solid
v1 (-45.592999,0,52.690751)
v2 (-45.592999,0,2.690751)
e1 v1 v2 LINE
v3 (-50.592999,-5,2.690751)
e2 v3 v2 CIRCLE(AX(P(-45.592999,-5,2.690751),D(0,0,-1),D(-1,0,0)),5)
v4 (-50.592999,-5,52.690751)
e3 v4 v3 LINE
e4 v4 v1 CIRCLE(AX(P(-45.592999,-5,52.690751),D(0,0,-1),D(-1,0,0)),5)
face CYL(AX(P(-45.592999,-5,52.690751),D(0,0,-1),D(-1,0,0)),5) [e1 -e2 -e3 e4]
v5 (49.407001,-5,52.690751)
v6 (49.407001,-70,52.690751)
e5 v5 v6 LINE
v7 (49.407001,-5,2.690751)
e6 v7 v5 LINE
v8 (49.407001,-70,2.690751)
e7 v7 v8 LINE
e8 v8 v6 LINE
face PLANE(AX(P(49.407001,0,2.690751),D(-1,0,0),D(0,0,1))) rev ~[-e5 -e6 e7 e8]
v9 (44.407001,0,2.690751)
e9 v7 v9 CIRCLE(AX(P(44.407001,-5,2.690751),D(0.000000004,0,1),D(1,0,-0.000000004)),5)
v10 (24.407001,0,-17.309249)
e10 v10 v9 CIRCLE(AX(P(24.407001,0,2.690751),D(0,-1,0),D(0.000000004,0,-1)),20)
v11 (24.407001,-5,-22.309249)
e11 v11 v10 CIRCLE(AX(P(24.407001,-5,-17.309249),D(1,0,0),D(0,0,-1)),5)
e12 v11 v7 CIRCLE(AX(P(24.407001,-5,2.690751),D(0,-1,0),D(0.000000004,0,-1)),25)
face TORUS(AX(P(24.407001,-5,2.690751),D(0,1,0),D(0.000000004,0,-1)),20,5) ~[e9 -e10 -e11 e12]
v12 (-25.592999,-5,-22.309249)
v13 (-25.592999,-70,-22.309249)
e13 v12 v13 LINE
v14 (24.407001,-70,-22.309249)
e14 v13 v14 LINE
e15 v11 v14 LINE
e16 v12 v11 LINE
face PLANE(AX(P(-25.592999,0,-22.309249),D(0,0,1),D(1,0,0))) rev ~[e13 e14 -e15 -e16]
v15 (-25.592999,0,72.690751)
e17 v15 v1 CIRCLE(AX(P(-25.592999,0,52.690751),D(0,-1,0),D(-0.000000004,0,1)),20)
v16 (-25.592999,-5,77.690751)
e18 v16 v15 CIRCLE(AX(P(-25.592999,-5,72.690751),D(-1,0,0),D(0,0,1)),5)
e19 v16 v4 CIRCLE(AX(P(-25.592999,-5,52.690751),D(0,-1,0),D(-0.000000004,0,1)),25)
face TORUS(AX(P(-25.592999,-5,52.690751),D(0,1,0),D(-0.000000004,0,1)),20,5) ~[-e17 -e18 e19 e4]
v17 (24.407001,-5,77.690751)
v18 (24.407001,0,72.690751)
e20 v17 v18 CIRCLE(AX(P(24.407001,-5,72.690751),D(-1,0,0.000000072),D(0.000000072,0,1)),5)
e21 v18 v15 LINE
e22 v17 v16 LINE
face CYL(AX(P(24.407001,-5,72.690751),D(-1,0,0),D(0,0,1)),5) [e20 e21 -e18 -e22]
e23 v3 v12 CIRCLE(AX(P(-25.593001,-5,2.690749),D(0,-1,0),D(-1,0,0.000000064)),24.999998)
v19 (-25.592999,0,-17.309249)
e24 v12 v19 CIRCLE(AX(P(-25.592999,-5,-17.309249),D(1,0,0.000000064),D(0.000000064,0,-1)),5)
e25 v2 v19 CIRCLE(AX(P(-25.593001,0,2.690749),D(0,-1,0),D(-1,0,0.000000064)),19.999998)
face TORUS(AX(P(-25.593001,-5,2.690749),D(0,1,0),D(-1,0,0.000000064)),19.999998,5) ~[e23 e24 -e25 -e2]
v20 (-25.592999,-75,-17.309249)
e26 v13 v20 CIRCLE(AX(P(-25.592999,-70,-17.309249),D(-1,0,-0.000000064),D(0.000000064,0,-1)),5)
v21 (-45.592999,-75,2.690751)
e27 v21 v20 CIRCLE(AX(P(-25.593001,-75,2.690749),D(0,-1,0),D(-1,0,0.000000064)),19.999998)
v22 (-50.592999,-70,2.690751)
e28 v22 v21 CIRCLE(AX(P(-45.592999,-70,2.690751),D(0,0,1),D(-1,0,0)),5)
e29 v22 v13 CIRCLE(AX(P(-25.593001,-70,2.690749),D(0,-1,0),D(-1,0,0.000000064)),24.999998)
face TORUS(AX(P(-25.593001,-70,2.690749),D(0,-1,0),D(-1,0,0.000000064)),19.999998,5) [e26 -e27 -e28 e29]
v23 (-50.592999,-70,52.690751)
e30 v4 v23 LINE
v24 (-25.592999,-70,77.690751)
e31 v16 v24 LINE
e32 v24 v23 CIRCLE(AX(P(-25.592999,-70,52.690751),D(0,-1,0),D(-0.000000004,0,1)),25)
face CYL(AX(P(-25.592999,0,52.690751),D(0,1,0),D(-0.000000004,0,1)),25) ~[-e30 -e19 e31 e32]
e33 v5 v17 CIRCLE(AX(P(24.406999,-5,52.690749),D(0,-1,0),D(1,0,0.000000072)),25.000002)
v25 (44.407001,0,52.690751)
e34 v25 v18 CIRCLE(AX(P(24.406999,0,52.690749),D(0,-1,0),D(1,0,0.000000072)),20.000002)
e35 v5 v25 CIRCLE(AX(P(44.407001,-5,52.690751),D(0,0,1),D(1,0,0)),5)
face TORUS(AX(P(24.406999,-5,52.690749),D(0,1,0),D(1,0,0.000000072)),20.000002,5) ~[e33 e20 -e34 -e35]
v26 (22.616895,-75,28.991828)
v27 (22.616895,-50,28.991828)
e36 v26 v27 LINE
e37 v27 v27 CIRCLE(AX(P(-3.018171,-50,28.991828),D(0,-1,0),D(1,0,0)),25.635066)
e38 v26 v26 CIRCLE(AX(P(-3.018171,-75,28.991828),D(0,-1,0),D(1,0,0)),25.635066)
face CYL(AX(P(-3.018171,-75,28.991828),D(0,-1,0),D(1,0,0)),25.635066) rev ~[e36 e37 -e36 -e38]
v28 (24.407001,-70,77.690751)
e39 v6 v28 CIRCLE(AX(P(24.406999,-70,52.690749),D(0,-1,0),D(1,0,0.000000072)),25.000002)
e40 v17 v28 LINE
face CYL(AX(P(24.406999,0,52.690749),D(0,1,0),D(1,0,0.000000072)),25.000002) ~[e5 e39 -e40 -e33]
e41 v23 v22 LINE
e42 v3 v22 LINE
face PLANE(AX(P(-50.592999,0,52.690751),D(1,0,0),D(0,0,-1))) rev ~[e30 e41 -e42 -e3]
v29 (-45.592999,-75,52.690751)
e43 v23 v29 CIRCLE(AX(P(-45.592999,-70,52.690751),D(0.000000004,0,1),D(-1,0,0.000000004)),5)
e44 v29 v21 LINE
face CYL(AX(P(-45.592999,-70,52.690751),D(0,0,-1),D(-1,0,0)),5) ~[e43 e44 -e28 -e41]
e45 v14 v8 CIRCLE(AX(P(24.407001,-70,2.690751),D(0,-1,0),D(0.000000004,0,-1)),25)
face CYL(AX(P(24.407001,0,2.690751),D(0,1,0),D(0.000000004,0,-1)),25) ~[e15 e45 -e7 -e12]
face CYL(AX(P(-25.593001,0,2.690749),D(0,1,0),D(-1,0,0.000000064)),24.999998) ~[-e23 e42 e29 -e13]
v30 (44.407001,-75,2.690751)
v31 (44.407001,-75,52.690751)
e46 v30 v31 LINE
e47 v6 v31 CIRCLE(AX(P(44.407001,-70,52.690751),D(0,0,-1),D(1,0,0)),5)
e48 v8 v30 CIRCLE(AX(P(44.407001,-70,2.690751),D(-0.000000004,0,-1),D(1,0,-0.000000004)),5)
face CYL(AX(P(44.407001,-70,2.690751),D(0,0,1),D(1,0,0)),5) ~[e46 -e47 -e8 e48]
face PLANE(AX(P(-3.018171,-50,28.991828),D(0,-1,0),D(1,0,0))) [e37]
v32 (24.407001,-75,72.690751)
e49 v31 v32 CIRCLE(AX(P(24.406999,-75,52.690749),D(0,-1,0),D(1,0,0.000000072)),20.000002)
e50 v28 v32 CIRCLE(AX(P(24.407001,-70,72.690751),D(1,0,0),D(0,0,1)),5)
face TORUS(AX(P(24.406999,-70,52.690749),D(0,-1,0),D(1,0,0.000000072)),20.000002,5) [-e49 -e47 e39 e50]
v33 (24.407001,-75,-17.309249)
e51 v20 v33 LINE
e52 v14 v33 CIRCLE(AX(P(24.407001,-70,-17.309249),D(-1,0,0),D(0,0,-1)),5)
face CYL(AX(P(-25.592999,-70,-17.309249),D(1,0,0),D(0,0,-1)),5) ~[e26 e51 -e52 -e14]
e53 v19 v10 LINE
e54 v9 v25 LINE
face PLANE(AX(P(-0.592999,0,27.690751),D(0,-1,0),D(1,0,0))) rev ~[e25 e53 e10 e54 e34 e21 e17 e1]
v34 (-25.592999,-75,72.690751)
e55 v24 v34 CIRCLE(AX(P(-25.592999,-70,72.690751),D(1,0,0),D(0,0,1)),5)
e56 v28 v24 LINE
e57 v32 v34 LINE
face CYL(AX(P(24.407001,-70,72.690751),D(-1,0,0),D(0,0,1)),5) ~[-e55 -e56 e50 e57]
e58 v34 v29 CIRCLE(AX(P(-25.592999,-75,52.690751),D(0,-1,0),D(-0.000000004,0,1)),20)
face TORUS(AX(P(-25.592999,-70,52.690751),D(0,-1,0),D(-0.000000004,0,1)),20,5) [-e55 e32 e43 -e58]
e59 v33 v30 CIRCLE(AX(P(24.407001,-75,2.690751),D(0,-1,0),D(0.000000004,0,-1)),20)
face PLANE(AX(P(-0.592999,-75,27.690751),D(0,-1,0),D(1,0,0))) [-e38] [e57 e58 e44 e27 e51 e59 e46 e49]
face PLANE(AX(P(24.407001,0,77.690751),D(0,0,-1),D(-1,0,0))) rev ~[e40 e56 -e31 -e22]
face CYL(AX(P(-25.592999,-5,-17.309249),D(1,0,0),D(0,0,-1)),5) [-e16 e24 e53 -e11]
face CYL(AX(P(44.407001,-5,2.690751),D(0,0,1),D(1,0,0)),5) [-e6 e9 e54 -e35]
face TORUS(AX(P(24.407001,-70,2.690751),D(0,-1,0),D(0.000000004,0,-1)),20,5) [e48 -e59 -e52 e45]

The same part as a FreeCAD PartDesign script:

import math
import FreeCAD as App
import Part
import Sketcher
Q = App.Units.Quantity


def edges_at(feature, points):
    """Names of the edges that pass closest to the given points."""
    edges = feature.Shape.Edges
    near = lambda p: min(range(len(edges)), key=lambda i: edges[i].distToShape(Part.Vertex(*p))[0])
    return sorted({f"Edge{near(p) + 1}" for p in points})

doc = App.newDocument("Part")
body = doc.addObject("PartDesign::Body", "Body")

sketch1 = body.newObject("Sketcher::SketchObject", "Sketch")
sketch1.AttachmentSupport = (doc.getObject("XZ_Plane"), [""])
sketch1.MapMode = "FlatFace"
sketch1.addGeometry([
    Part.LineSegment(App.Vector(24, 78, 0), App.Vector(-26, 78, 0)),
    Part.ArcOfCircle(Part.Circle(App.Vector(-26, 53, 0), App.Vector(0, 0, 1), 25), math.radians(90), math.radians(180)),
    Part.LineSegment(App.Vector(-51, 53, 0), App.Vector(-51, 3, 0)),
    Part.ArcOfCircle(Part.Circle(App.Vector(-26, 3, 0), App.Vector(0, 0, 1), 25), math.radians(180), math.radians(270)),
    Part.LineSegment(App.Vector(-26, -22, 0), App.Vector(24, -22, 0)),
    Part.ArcOfCircle(Part.Circle(App.Vector(24, 3, 0), App.Vector(0, 0, 1), 25), math.radians(-90), math.radians(0)),
    Part.LineSegment(App.Vector(49, 3, 0), App.Vector(49, 53, 0)),
    Part.ArcOfCircle(Part.Circle(App.Vector(24, 53, 0), App.Vector(0, 0, 1), 25), math.radians(0), math.radians(90)),
], False)
sketch1.addConstraint([
    Sketcher.Constraint("Tangent", 0, 2, 1, 1),
    Sketcher.Constraint("Tangent", 1, 2, 2, 1),
    Sketcher.Constraint("Tangent", 2, 2, 3, 1),
    Sketcher.Constraint("Tangent", 3, 2, 4, 1),
    Sketcher.Constraint("Tangent", 4, 2, 5, 1),
    Sketcher.Constraint("Tangent", 5, 2, 6, 1),
    Sketcher.Constraint("Tangent", 6, 2, 7, 1),
    Sketcher.Constraint("Tangent", 7, 2, 0, 1),
    Sketcher.Constraint("Horizontal", 0),
    Sketcher.Constraint("Vertical", 2),
    Sketcher.Constraint("Horizontal", 4),
    Sketcher.Constraint("Vertical", 6),
    Sketcher.Constraint("Equal", 1, 3),
    Sketcher.Constraint("Equal", 3, 5),
    Sketcher.Constraint("Equal", 5, 7),
    Sketcher.Constraint("Equal", 4, 2),
    Sketcher.Constraint("Radius", 1, Q("25 mm")),
    Sketcher.Constraint("DistanceX", 0, 2, 0, 1, Q("50 mm")),
    Sketcher.Constraint("DistanceX", 1, 3, -1, 1, Q("25.592999 mm")),
    Sketcher.Constraint("DistanceY", -1, 1, 1, 3, Q("52.690751 mm")),
])
pad1 = body.newObject("PartDesign::Pad", "Pad")
pad1.Profile = sketch1
pad1.Length = 75
doc.recompute()

fillet = body.newObject("PartDesign::Fillet", "Fillet")
fillet.Base = (pad1, edges_at(pad1, [
    (24.407, -37.5, 77.691),
    (-0.593, -75, 77.691),
    (42.085, -75, 70.368),
    (-50.593, -37.5, 2.691),
    (-50.593, 0, 27.691),
    (-43.271, 0, -14.987),
    (42.085, 0, 70.368),
    (49.407, 0, 27.691),
    (-0.593, 0, 77.691),
    (-43.271, 0, 70.368),
    (-0.593, 0, -22.309),
    (42.085, 0, -14.987),
]))
fillet.Radius = 5

sketch2 = body.newObject("Sketcher::SketchObject", "Sketch001")
sketch2.AttachmentSupport = (doc.getObject("XZ_Plane"), [""])
sketch2.MapMode = "FlatFace"
sketch2.AttachmentOffset = App.Placement(App.Vector(0, 0, 75), App.Rotation())
sketch2.addGeometry(Part.Circle(App.Vector(-3, 29, 0), App.Vector(0, 0, 1), 26), False)
sketch2.addConstraint([
    Sketcher.Constraint("Diameter", 0, Q("51.270132 mm")),
    Sketcher.Constraint("DistanceX", 0, 3, -1, 1, Q("3.018171 mm")),
    Sketcher.Constraint("DistanceY", -1, 1, 0, 3, Q("28.991828 mm")),
])
pocket1 = body.newObject("PartDesign::Pocket", "Pocket")
pocket1.Profile = sketch2
pocket1.Length = 25

doc.recompute()
